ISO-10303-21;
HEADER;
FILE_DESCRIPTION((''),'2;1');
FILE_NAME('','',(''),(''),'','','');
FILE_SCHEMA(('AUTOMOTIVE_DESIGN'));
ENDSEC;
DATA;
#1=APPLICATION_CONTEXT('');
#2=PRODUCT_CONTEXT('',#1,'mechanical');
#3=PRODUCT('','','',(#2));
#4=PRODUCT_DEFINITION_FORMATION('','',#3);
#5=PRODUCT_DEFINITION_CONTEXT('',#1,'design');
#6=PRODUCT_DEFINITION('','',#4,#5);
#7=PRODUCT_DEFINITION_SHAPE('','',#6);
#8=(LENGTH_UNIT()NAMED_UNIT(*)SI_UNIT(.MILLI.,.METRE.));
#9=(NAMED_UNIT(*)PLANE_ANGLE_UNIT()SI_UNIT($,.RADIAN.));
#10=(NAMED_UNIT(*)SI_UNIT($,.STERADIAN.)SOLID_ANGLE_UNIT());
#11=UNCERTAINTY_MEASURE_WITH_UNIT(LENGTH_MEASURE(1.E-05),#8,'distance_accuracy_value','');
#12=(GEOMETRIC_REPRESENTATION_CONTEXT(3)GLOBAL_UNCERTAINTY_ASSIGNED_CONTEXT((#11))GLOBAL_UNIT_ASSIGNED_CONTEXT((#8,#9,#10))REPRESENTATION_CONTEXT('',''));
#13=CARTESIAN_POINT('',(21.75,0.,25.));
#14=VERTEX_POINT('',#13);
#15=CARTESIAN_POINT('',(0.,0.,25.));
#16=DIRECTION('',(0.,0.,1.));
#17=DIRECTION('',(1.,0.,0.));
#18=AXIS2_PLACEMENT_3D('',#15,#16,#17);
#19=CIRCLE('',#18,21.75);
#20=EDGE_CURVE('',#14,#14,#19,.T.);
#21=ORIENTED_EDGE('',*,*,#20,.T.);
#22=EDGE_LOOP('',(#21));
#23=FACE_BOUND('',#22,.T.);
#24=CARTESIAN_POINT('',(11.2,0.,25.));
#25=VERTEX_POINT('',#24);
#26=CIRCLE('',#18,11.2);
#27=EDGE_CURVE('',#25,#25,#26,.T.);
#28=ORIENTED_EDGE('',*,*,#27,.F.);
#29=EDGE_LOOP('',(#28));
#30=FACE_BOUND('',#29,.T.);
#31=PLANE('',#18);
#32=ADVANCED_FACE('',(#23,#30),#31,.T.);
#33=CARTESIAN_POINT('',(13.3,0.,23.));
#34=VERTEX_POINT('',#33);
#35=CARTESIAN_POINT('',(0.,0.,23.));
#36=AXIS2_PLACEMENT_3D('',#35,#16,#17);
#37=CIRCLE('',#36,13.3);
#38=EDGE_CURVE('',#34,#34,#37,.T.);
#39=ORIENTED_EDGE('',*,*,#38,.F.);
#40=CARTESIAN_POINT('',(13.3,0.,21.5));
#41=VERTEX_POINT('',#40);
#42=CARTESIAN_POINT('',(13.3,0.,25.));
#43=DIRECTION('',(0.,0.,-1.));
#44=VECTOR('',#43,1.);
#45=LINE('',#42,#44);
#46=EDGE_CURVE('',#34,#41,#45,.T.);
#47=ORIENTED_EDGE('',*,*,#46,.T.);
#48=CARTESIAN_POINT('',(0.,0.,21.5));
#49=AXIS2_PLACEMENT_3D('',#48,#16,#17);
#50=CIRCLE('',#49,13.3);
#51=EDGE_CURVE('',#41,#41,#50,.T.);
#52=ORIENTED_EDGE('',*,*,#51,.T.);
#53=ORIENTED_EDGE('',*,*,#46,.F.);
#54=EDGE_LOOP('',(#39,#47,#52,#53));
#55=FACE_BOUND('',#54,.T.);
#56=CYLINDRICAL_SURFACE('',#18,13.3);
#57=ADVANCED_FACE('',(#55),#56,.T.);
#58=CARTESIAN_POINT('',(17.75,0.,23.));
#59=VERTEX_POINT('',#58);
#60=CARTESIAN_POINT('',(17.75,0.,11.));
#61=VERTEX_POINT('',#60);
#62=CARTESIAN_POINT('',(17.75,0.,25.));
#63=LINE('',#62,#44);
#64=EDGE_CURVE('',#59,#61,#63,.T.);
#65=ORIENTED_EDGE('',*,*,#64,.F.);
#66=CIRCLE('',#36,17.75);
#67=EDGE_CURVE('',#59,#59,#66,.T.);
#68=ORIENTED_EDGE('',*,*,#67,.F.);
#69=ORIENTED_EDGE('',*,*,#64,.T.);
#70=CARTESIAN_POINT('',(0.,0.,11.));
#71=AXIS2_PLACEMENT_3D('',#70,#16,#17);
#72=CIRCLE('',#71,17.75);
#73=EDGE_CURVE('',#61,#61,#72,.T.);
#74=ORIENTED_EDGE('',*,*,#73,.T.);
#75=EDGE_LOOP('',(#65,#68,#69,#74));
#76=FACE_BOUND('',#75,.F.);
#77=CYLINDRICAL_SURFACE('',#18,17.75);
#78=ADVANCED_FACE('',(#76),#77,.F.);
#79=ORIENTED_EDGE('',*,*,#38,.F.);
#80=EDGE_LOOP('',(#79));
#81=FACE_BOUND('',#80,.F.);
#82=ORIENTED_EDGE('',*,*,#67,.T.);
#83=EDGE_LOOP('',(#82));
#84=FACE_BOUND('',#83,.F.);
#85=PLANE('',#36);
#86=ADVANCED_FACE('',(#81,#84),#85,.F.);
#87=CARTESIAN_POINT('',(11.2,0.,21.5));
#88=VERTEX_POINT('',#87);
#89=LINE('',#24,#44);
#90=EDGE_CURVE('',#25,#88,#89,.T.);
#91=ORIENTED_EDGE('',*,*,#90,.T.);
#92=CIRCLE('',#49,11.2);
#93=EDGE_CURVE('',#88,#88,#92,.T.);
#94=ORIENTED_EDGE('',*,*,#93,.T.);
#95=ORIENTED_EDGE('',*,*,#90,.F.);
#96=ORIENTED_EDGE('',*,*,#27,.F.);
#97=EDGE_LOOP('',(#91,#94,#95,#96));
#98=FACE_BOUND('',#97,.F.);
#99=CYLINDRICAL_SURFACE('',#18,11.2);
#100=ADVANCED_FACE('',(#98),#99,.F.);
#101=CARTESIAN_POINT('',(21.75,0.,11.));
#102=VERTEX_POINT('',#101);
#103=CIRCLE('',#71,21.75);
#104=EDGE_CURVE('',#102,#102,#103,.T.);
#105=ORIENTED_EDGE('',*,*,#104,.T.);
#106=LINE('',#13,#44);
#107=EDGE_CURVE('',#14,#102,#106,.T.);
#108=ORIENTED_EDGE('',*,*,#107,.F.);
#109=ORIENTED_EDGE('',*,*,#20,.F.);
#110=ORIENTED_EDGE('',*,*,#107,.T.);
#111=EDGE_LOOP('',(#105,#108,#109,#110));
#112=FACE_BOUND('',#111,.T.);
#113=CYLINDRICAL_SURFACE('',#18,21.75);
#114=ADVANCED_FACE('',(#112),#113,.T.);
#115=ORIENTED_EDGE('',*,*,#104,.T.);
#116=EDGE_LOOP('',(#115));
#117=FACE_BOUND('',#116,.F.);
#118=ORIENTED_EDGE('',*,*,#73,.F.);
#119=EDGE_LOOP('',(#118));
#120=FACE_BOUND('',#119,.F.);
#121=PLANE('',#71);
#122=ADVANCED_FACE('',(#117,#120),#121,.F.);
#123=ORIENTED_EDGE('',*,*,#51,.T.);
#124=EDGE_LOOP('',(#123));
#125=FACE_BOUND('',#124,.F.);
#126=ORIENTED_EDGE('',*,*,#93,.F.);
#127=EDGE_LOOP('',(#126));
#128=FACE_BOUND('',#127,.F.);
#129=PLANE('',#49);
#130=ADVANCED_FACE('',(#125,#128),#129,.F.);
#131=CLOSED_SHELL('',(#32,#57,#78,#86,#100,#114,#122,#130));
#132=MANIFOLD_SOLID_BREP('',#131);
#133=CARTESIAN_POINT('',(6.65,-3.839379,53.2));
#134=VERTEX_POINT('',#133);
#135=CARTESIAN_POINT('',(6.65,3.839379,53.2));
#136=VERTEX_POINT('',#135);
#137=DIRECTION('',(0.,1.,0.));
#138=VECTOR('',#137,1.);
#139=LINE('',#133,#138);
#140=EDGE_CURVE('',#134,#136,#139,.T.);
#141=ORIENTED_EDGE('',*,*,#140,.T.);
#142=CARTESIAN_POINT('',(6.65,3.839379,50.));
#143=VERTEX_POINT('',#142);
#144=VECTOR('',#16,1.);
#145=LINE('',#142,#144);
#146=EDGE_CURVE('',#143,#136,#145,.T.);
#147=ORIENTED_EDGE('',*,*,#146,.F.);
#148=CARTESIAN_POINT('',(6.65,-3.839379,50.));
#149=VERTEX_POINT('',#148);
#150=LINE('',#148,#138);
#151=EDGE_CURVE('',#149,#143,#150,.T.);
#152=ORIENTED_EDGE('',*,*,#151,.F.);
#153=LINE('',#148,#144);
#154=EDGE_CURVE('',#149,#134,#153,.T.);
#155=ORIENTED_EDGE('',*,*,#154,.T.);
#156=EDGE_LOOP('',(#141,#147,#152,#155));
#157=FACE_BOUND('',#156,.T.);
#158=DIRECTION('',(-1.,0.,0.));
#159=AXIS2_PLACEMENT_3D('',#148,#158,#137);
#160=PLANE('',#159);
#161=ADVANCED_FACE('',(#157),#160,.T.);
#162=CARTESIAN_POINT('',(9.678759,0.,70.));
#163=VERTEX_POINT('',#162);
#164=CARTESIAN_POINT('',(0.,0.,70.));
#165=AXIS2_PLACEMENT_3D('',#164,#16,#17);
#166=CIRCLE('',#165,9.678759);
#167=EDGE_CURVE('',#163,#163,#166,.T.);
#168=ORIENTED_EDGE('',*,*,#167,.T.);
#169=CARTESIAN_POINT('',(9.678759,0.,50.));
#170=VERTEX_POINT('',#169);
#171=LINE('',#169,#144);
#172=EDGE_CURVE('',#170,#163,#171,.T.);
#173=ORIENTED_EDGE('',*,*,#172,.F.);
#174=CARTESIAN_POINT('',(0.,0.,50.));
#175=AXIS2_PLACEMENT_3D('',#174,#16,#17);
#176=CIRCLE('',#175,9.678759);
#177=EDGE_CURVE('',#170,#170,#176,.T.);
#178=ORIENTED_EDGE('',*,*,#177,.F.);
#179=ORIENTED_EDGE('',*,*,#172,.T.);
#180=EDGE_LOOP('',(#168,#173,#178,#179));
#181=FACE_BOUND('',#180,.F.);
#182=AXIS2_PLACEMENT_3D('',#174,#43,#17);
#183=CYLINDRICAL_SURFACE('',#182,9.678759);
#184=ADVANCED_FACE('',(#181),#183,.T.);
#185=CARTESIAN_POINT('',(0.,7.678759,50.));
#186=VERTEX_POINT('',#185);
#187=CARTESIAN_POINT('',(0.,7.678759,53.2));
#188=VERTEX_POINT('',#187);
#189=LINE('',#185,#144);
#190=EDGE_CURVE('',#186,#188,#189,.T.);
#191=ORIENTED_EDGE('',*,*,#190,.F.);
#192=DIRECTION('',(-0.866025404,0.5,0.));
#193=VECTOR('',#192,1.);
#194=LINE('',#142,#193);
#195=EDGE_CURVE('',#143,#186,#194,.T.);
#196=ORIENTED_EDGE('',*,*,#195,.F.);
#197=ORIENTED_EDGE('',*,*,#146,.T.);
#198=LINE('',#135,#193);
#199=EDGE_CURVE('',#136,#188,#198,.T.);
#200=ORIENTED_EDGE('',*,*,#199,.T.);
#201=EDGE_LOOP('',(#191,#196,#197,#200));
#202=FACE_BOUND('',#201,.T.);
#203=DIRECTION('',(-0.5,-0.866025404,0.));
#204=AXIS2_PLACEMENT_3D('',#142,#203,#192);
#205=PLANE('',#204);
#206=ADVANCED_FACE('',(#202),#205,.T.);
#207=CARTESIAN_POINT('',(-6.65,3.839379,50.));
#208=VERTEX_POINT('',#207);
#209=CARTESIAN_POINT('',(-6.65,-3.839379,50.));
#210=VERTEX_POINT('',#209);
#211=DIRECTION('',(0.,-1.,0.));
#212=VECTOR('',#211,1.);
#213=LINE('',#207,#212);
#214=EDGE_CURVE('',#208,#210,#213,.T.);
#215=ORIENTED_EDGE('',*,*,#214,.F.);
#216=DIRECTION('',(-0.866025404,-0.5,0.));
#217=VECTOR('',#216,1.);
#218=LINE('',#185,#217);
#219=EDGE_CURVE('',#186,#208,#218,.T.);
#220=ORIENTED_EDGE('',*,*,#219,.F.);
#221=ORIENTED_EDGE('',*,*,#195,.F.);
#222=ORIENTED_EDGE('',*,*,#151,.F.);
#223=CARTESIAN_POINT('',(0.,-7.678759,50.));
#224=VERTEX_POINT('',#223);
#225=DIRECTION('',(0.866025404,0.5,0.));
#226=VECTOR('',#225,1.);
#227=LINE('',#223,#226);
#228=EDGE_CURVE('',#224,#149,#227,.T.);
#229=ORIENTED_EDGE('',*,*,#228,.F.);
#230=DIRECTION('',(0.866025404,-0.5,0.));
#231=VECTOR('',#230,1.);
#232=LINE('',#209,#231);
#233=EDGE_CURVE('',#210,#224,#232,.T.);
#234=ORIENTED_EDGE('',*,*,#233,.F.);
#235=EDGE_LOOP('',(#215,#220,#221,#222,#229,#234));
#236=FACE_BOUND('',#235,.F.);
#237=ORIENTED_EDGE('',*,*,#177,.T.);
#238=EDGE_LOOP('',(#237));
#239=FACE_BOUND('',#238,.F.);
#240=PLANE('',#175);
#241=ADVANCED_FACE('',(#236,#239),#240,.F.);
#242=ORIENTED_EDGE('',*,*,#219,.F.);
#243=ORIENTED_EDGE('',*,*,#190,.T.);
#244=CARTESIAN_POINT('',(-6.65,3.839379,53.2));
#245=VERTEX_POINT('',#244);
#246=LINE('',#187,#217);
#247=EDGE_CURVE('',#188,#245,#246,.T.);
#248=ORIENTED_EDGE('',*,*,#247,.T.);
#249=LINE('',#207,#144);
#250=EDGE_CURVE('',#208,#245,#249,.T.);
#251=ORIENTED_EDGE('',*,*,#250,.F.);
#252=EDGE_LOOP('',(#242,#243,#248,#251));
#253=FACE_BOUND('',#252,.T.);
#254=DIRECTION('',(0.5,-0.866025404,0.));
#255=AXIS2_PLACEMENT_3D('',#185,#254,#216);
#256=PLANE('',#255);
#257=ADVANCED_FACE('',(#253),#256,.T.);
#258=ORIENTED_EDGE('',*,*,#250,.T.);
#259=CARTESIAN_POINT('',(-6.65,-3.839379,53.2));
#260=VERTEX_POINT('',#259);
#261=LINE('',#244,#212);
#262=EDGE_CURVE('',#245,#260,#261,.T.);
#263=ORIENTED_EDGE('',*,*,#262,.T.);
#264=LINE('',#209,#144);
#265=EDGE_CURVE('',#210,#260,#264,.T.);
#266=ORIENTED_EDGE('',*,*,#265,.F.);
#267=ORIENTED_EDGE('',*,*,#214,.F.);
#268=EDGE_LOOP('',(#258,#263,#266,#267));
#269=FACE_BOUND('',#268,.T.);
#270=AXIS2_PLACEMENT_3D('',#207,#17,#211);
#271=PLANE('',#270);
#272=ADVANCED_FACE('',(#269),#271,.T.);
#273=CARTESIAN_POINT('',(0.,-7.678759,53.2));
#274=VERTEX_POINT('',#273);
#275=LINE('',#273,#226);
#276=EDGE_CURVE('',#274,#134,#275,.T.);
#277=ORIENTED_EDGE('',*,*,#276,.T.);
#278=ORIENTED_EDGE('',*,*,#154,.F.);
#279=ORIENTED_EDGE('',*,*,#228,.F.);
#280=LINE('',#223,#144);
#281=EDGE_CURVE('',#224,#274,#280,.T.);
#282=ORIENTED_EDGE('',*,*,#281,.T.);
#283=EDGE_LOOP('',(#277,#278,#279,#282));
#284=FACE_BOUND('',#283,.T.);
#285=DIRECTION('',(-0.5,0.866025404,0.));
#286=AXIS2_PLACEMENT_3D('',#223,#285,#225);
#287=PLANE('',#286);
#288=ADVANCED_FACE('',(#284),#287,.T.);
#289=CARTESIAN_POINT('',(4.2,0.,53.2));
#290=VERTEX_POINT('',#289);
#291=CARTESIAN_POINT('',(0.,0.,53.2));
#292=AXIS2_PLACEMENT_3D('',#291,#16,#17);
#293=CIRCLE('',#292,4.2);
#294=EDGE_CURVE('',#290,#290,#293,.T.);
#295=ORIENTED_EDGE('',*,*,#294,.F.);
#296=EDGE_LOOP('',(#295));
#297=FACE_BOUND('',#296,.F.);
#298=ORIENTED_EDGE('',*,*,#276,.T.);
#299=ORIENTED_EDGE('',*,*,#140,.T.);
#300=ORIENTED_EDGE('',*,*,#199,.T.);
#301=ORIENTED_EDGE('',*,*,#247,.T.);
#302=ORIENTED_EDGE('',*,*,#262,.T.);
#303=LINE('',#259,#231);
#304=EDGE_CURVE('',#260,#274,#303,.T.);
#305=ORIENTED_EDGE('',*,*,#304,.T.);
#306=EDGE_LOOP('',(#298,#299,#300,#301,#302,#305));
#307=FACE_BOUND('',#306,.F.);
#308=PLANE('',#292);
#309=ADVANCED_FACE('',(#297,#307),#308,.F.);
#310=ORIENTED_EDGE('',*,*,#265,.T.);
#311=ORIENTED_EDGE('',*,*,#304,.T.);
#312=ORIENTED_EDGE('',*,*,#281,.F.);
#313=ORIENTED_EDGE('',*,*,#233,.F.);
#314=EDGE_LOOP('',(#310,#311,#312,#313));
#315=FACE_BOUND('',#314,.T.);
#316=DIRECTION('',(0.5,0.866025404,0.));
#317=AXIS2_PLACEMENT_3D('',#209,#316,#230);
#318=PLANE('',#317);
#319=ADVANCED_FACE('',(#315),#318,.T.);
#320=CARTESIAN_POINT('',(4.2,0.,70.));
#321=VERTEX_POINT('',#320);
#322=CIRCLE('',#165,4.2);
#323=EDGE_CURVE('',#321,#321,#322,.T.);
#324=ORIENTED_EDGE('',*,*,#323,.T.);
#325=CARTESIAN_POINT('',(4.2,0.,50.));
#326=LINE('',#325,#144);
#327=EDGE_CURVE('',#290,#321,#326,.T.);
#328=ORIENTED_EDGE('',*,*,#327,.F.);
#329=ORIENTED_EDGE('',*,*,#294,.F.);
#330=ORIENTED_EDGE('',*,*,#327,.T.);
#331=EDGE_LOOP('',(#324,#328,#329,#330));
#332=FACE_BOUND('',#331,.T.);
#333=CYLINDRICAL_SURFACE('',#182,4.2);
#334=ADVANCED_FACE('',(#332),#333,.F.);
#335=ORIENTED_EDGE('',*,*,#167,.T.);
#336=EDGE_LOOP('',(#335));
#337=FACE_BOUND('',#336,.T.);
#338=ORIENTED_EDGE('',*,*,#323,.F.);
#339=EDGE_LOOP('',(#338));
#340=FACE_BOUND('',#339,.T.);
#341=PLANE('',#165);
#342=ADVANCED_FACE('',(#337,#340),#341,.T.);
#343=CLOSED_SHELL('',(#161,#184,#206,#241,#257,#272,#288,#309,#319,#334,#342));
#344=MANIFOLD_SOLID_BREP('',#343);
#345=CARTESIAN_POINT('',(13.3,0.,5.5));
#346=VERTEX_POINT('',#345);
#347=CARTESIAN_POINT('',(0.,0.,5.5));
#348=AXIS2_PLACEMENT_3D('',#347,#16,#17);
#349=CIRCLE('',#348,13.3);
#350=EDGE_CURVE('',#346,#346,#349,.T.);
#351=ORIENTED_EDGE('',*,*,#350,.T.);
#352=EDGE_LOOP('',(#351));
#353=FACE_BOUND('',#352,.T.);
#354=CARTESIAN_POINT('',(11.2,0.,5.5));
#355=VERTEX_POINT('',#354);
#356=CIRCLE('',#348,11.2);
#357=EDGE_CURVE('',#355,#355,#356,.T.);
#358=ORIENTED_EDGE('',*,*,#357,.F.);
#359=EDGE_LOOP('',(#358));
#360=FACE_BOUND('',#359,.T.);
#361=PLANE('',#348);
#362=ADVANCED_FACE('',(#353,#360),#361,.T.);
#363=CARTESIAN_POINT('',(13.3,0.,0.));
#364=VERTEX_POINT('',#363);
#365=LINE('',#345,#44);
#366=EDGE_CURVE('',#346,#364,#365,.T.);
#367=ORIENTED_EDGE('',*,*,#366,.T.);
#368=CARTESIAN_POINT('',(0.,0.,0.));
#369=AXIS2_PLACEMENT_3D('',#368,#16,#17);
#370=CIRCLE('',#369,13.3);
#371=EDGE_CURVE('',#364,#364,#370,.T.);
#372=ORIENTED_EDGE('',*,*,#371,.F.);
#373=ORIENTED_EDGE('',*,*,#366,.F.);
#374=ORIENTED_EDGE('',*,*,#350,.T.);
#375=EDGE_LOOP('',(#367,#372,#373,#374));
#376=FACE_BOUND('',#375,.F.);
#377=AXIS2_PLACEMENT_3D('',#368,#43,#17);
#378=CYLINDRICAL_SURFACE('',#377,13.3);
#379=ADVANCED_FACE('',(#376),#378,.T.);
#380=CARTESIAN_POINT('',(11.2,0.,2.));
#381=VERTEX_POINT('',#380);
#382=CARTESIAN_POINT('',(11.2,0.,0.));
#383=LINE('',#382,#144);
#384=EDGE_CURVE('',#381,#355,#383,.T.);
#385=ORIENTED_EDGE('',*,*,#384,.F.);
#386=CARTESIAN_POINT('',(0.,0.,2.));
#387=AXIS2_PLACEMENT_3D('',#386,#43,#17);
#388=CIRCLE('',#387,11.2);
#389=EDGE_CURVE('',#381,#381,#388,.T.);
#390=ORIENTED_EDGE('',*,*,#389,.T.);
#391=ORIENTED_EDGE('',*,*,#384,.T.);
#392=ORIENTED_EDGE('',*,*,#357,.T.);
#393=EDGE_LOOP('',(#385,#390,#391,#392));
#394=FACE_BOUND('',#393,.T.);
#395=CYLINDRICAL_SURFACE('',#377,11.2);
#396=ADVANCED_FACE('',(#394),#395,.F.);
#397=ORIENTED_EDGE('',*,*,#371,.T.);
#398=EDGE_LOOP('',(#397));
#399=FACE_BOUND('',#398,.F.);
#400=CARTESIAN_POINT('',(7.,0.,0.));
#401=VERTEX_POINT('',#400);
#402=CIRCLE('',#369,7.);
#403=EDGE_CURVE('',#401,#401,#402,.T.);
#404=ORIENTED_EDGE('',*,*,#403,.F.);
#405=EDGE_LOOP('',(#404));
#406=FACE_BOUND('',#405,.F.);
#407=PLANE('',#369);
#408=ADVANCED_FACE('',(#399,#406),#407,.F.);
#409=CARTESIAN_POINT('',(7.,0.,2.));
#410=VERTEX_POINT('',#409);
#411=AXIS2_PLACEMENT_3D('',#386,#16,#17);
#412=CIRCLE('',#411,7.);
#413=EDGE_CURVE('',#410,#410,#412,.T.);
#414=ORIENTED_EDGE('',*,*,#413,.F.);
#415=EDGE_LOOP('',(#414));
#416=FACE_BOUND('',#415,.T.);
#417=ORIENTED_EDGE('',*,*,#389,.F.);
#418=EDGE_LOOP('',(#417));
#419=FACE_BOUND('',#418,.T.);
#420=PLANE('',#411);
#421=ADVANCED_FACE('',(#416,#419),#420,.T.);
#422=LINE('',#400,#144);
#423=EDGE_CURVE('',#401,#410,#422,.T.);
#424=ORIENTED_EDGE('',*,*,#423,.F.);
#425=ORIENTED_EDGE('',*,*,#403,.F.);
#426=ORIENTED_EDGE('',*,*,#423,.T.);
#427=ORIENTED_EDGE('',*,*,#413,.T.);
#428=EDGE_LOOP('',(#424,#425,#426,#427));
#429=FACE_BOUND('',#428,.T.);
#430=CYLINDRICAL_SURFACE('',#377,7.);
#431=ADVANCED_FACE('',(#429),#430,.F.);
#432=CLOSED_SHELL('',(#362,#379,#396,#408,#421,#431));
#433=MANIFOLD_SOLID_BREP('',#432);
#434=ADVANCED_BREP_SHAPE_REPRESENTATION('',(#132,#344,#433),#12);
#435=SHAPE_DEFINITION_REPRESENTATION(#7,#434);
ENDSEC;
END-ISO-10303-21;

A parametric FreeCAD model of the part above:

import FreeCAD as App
import Part
import Sketcher

V = App.Vector
Q = App.Units.Quantity


def add_polygon(sketch, points):
    """Adds a closed chain of lines whose ends are joined by coincident constraints."""
    first, n = sketch.GeometryCount, len(points)
    for a, b in zip(points, points[1:] + points[:1]):
        sketch.addGeometry(Part.LineSegment(App.Vector(*a, 0), App.Vector(*b, 0)), False)
    for i in range(n):
        sketch.addConstraint(Sketcher.Constraint("Coincident", first + i, 2, first + (i + 1) % n, 1))

doc = App.newDocument("Part")
body = doc.addObject("PartDesign::Body", "Body")

sketch1 = body.newObject("Sketcher::SketchObject", "Sketch")
sketch1.AttachmentSupport = (doc.getObject("XY_Plane"), [""])
sketch1.MapMode = "FlatFace"
sketch1.addGeometry(Part.Circle(V(0, 0, 0), V(0, 0, 1), 13), False)
sketch1.addGeometry(Part.Circle(V(0, 0, 0), V(0, 0, 1), 7), False)
sketch1.addConstraint(Sketcher.Constraint("Coincident", 0, 3, -1, 1))
sketch1.addConstraint(Sketcher.Constraint("Coincident", 1, 3, -1, 1))
sketch1.addConstraint(Sketcher.Constraint("Diameter", 1, 14.0))
sketch1.addConstraint(Sketcher.Constraint("Diameter", 0, 26.6))
pad1 = body.newObject("PartDesign::Pad", "Pad")
pad1.Profile = sketch1
pad1.Length = 2

sketch2 = body.newObject("Sketcher::SketchObject", "Sketch001")
sketch2.AttachmentSupport = (doc.getObject("XY_Plane"), [""])
sketch2.MapMode = "FlatFace"
sketch2.addGeometry(Part.Circle(V(0, 0, 0), V(0, 0, 1), 13), False)
sketch2.addGeometry(Part.Circle(V(0, 0, 0), V(0, 0, 1), 11), False)
sketch2.addConstraint(Sketcher.Constraint("Coincident", 0, 3, -1, 1))
sketch2.addConstraint(Sketcher.Constraint("Coincident", 1, 3, -1, 1))
sketch2.addConstraint(Sketcher.Constraint("Diameter", 0, 26.6))
sketch2.addConstraint(Sketcher.Constraint("Diameter", 1, 22.4))
pad2 = body.newObject("PartDesign::Pad", "Pad001")
pad2.Profile = sketch2
pad2.Length = 5.5
body2 = doc.addObject("PartDesign::Body", "Body001")

sketch3 = body2.newObject("Sketcher::SketchObject", "Sketch002")
sketch3.AttachmentSupport = (doc.getObject("XY_Plane001"), [""])
sketch3.MapMode = "FlatFace"
sketch3.AttachmentOffset = App.Placement(V(0, 0, 25), App.Rotation())
sketch3.addGeometry(Part.Circle(V(0, 0, 0), V(0, 0, 1), 13), False)
sketch3.addGeometry(Part.Circle(V(0, 0, 0), V(0, 0, 1), 11), False)
sketch3.addConstraint(Sketcher.Constraint("Coincident", 0, 3, -1, 1))
sketch3.addConstraint(Sketcher.Constraint("Coincident", 1, 3, -1, 1))
sketch3.addConstraint(Sketcher.Constraint("Diameter", 0, 26.6))
sketch3.addConstraint(Sketcher.Constraint("Diameter", 1, 22.4))
pad3 = body2.newObject("PartDesign::Pad", "Pad002")
pad3.Profile = sketch3
pad3.Length = 3.5
pad3.Reversed = True

sketch4 = body2.newObject("Sketcher::SketchObject", "Sketch003")
sketch4.AttachmentSupport = (doc.getObject("XY_Plane001"), [""])
sketch4.MapMode = "FlatFace"
sketch4.AttachmentOffset = App.Placement(V(0, 0, 25), App.Rotation())
sketch4.addGeometry(Part.Circle(V(0, 0, 0), V(0, 0, 1), 18), False)
sketch4.addGeometry(Part.Circle(V(0, 0, 0), V(0, 0, 1), 13), False)
sketch4.addConstraint(Sketcher.Constraint("Coincident", 0, 3, -1, 1))
sketch4.addConstraint(Sketcher.Constraint("Coincident", 1, 3, -1, 1))
sketch4.addConstraint(Sketcher.Constraint("Diameter", 0, 35.5))
sketch4.addConstraint(Sketcher.Constraint("Diameter", 1, 26.6))
pad4 = body2.newObject("PartDesign::Pad", "Pad003")
pad4.Profile = sketch4
pad4.Length = 2
pad4.Reversed = True

sketch5 = body2.newObject("Sketcher::SketchObject", "Sketch004")
sketch5.AttachmentSupport = (doc.getObject("XY_Plane001"), [""])
sketch5.MapMode = "FlatFace"
sketch5.AttachmentOffset = App.Placement(V(0, 0, 25), App.Rotation())
sketch5.addGeometry(Part.Circle(V(0, 0, 0), V(0, 0, 1), 22), False)
sketch5.addGeometry(Part.Circle(V(0, 0, 0), V(0, 0, 1), 18), False)
sketch5.addConstraint(Sketcher.Constraint("Coincident", 0, 3, -1, 1))
sketch5.addConstraint(Sketcher.Constraint("Coincident", 1, 3, -1, 1))
sketch5.addConstraint(Sketcher.Constraint("Diameter", 0, 43.5))
sketch5.addConstraint(Sketcher.Constraint("Diameter", 1, 35.5))
pad5 = body2.newObject("PartDesign::Pad", "Pad004")
pad5.Profile = sketch5
pad5.Length = 14
pad5.Reversed = True
body3 = doc.addObject("PartDesign::Body", "Body002")

sketch6 = body3.newObject("Sketcher::SketchObject", "Sketch005")
sketch6.AttachmentSupport = (doc.getObject("XY_Plane002"), [""])
sketch6.MapMode = "FlatFace"
sketch6.AttachmentOffset = App.Placement(V(0, 0, 50), App.Rotation())
sketch6.addGeometry(Part.Circle(V(0, 0, 0), V(0, 0, 1), 9.7), False)
sketch6.addGeometry(Part.Circle(V(0, 0, 0), V(0, 0, 1), 4.2), False)
sketch6.addConstraint(Sketcher.Constraint("Coincident", 0, 3, -1, 1))
sketch6.addConstraint(Sketcher.Constraint("Coincident", 1, 3, -1, 1))
sketch6.addConstraint(Sketcher.Constraint("Diameter", 1, 8.4))
sketch6.addConstraint(Sketcher.Constraint("Diameter", 0, 19.357517))
pad6 = body3.newObject("PartDesign::Pad", "Pad005")
pad6.Profile = sketch6
pad6.Length = 20

sketch7 = body3.newObject("Sketcher::SketchObject", "Sketch006")
sketch7.AttachmentSupport = (doc.getObject("XY_Plane002"), [""])
sketch7.MapMode = "FlatFace"
sketch7.AttachmentOffset = App.Placement(V(0, 0, 50), App.Rotation())
add_polygon(sketch7, [(6.7, -3.8), (6.7, 3.8), (0, 7.7), (-6.7, 3.8), (-6.7, -3.8), (0, -7.7)])
sketch7.addGeometry(Part.Circle(V(0, 0, 0), V(0, 0, 1), 4.2), False)
sketch7.addConstraint(Sketcher.Constraint("Vertical", 0))
sketch7.addConstraint(Sketcher.Constraint("Vertical", 3))
sketch7.addConstraint(Sketcher.Constraint("Coincident", 6, 3, -1, 1))
sketch7.addConstraint(Sketcher.Constraint("Symmetric", 0, 2, 3, 2, -1, 1))
sketch7.addConstraint(Sketcher.Constraint("Symmetric", 1, 2, 4, 2, -1, 1))
sketch7.addConstraint(Sketcher.Constraint("PointOnObject", 1, 2, -2))
sketch7.addConstraint(Sketcher.Constraint("Parallel", 2, 5))
sketch7.addConstraint(Sketcher.Constraint("Horizontal", 0, 2, 2, 2))
sketch7.addConstraint(Sketcher.Constraint("Diameter", 6, 8.4))
sketch7.addConstraint(Sketcher.Constraint("Angle", 1, Q("150 deg")))
sketch7.addConstraint(Sketcher.Constraint("DistanceX", 2, 2, 0, 2, 13.3))
sketch7.addConstraint(Sketcher.Constraint("DistanceY", 0, 1, 0, 2, 7.678759))
pocket1 = body3.newObject("PartDesign::Pocket", "Pocket")
pocket1.Profile = sketch7
pocket1.Length = 3.2
pocket1.Reversed = True

doc.recompute()
